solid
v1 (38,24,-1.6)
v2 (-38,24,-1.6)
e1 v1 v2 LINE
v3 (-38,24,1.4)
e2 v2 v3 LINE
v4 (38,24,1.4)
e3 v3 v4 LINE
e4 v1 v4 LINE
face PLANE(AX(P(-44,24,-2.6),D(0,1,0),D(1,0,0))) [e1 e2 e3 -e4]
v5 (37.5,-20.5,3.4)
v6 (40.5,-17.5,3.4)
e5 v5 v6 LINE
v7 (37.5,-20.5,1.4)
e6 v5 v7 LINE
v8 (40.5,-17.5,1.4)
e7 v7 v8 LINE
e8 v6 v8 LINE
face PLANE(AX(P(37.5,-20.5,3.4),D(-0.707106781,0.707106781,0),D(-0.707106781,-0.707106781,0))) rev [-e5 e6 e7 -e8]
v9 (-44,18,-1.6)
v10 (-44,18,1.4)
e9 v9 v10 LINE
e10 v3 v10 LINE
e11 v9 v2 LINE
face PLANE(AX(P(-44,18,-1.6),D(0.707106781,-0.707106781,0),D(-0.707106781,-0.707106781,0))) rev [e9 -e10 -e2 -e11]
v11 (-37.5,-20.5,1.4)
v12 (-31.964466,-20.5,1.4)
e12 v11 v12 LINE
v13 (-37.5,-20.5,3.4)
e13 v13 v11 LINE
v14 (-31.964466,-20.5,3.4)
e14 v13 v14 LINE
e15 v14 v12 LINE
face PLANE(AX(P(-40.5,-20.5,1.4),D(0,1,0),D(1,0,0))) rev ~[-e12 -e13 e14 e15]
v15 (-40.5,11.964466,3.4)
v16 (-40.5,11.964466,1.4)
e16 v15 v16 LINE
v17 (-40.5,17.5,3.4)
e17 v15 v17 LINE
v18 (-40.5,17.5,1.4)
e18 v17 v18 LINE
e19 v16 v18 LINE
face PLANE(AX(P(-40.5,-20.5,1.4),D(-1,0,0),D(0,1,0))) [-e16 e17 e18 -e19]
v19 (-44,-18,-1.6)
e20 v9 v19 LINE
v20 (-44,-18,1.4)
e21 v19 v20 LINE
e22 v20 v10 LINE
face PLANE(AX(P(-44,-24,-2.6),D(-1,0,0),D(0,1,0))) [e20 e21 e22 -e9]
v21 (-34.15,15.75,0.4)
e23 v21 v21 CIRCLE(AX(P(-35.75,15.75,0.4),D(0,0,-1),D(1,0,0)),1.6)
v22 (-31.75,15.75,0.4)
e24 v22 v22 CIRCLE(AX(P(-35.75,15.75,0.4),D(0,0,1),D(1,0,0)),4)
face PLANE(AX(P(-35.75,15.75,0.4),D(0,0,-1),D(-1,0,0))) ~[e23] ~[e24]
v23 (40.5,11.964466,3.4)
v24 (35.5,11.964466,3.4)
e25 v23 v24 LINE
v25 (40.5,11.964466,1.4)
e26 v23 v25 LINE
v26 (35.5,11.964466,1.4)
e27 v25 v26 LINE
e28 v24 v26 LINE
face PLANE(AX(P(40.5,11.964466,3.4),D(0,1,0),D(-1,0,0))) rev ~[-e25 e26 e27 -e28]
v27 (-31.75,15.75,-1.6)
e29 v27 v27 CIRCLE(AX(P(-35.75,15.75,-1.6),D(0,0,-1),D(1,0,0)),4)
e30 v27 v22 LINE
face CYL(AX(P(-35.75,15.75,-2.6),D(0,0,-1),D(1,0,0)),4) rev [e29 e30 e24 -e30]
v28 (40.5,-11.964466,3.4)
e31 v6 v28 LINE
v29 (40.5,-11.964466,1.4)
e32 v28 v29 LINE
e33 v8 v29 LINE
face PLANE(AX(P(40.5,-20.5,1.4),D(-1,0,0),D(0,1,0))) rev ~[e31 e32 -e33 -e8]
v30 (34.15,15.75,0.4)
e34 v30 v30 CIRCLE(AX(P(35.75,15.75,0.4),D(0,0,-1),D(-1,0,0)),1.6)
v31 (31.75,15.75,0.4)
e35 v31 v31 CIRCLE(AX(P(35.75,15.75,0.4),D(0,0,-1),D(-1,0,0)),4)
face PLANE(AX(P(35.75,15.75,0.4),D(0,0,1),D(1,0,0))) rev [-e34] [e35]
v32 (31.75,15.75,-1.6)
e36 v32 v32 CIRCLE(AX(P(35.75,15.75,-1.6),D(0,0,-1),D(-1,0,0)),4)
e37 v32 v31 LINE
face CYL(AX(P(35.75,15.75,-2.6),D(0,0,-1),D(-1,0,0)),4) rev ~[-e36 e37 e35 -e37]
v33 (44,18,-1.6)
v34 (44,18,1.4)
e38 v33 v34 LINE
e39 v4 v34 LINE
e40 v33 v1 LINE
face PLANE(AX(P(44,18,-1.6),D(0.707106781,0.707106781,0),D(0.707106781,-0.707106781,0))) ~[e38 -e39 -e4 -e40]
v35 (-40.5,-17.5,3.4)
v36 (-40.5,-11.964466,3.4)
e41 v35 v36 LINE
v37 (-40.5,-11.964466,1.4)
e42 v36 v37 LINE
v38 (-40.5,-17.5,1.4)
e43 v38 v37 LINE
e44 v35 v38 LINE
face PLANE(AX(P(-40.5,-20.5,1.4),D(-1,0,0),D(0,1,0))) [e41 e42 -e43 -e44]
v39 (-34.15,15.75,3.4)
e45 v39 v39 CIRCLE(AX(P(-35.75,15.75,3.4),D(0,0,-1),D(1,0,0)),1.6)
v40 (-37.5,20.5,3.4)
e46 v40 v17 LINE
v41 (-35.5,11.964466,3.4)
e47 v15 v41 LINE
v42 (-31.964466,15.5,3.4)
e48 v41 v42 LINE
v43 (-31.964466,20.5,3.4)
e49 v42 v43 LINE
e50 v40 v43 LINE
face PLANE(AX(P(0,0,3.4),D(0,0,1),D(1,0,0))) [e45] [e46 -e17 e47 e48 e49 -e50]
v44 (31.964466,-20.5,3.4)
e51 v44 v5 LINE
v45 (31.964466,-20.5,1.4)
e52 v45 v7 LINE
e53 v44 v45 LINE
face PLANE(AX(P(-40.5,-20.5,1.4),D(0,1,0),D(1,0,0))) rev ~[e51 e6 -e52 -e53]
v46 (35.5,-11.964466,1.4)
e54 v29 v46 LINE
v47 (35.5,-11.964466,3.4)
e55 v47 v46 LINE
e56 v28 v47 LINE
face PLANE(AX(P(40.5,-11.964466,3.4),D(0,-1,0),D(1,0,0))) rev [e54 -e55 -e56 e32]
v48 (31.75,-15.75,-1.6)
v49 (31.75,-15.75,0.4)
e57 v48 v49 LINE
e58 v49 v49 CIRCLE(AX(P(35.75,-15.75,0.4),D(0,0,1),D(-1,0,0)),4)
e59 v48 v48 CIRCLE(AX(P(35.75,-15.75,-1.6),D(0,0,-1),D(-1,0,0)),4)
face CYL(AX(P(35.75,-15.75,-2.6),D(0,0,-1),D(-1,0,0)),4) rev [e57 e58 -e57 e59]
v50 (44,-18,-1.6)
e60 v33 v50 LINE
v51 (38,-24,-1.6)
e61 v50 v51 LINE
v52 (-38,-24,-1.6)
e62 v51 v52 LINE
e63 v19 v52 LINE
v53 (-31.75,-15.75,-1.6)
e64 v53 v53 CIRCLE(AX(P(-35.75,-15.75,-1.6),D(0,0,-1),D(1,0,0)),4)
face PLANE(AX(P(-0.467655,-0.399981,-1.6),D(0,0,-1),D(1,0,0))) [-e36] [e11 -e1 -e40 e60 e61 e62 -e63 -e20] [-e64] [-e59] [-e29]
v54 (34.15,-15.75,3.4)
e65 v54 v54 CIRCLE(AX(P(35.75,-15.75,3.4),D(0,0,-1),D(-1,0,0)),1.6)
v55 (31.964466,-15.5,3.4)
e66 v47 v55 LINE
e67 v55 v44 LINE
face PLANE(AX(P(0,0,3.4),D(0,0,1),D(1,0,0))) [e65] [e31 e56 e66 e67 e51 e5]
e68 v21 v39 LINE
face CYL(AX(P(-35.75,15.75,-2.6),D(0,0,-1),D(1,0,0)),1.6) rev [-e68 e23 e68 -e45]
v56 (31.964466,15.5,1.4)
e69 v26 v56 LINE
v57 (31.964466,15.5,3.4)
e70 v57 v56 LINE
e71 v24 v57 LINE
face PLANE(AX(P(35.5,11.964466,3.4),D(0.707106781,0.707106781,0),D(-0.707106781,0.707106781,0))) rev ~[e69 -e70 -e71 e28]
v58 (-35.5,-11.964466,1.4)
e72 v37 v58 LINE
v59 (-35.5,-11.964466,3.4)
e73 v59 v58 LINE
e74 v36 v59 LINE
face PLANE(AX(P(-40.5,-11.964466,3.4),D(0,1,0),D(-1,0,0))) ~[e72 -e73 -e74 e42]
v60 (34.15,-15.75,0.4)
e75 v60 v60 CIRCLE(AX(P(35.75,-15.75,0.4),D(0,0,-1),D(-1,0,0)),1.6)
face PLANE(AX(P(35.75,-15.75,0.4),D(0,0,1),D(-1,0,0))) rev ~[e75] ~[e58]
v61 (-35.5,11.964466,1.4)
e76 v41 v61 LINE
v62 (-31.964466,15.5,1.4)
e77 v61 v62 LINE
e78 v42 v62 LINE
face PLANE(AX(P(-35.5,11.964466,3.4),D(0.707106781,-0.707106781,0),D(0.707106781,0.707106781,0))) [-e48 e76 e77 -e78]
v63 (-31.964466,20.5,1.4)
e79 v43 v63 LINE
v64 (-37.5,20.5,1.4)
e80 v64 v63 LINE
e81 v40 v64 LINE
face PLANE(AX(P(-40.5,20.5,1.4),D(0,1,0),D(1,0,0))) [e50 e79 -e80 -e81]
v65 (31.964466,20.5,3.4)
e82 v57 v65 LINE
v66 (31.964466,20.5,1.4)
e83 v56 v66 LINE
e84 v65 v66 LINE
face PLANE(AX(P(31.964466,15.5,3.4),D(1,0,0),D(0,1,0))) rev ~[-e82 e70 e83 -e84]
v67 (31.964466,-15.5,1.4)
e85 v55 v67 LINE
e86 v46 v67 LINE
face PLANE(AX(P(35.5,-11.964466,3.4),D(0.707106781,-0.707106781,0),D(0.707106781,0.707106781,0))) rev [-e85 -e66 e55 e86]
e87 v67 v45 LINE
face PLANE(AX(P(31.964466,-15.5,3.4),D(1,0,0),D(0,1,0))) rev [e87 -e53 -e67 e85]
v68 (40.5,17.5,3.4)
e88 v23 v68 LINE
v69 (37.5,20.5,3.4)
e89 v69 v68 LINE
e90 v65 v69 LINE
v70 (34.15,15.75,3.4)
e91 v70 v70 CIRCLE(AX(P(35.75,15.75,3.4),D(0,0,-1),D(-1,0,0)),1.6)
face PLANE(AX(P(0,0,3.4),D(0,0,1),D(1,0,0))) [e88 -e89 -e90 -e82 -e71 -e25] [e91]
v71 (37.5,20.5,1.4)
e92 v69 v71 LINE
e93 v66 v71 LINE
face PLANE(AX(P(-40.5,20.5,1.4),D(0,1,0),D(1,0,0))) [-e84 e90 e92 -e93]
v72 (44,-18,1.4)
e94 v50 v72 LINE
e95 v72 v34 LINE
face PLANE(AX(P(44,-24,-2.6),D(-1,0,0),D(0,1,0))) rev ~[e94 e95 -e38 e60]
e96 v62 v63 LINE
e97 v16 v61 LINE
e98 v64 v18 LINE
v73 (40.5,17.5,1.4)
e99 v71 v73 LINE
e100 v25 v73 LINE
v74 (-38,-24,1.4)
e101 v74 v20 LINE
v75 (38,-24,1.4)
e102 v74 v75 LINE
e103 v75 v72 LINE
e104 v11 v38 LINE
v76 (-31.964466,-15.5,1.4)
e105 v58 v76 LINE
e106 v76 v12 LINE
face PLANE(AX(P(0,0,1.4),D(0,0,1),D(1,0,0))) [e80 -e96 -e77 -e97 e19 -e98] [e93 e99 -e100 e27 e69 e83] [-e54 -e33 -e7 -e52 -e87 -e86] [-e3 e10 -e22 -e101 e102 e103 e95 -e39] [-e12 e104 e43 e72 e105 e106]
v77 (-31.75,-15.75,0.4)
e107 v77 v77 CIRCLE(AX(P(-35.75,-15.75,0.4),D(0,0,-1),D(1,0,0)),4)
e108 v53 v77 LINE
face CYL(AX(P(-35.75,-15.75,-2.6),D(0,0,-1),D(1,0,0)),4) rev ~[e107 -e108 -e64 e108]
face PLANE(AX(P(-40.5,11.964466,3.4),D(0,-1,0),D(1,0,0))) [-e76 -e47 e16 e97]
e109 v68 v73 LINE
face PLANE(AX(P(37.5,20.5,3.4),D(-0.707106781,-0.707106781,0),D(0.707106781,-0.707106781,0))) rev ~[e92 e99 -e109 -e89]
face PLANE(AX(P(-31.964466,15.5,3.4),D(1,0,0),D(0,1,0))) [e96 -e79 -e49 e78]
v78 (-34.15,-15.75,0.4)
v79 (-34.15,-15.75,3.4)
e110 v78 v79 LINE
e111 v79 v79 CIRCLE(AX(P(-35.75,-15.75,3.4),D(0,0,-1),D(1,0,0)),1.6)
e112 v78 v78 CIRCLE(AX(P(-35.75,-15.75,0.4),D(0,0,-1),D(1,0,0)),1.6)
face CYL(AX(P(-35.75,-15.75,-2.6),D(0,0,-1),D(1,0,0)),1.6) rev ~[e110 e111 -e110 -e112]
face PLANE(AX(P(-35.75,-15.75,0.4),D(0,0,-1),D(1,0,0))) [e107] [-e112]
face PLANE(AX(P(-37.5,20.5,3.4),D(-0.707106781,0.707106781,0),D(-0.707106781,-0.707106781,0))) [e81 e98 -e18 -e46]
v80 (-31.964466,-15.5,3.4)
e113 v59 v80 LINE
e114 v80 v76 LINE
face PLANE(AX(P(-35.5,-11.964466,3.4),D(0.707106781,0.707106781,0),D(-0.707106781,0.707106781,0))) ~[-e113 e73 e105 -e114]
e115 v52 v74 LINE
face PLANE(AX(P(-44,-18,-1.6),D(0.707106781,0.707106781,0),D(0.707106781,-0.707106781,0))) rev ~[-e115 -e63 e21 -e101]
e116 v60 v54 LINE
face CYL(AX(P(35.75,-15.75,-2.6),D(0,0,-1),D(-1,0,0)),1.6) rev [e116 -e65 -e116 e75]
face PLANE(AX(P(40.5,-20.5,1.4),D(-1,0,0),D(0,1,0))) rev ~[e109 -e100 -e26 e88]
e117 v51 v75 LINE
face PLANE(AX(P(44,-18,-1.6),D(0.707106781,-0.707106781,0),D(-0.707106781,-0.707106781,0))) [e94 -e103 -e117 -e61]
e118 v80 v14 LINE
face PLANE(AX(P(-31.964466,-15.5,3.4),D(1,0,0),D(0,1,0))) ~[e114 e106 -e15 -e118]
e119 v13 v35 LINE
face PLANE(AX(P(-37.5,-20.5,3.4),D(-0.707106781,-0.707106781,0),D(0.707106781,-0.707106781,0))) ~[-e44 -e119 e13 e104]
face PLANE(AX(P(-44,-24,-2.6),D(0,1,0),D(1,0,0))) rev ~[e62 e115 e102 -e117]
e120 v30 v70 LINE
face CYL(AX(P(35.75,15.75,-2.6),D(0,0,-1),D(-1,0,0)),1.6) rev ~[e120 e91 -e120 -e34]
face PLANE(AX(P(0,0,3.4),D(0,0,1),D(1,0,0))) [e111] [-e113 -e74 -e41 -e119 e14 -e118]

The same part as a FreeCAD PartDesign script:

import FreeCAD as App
import Part
import Sketcher
Q = App.Units.Quantity


def add_polygon(sketch, points):
    """Adds a closed chain of lines whose ends are joined by coincident constraints."""
    first, n = sketch.GeometryCount, len(points)
    for a, b in zip(points, points[1:] + points[:1]):
        sketch.addGeometry(Part.LineSegment(App.Vector(*a, 0), App.Vector(*b, 0)), False)
    for i in range(n):
        sketch.addConstraint(Sketcher.Constraint("Coincident", first + i, 2, first + (i + 1) % n, 1))

doc = App.newDocument("Part")
body = doc.addObject("PartDesign::Body", "Body")

# Sketch on XY plane
sketch1 = body.newObject("Sketcher::SketchObject", "Sketch")
sketch1.AttachmentSupport = (doc.getObject("XY_Plane"), [""])
sketch1.MapMode = "FlatFace"
add_polygon(sketch1, [(-44, 24), (-44, -24), (44, -24), (44, 24)])  # lines 0-3
sketch1.addConstraint(Sketcher.Constraint("Vertical", 0))
sketch1.addConstraint(Sketcher.Constraint("Horizontal", 1))
sketch1.addConstraint(Sketcher.Constraint("Vertical", 2))
sketch1.addConstraint(Sketcher.Constraint("Horizontal", 3))
sketch1.addConstraint(Sketcher.Constraint("Symmetric", 0, 2, 2, 2, -1, 1))
sketch1.addConstraint(Sketcher.Constraint("DistanceX", 1, 1, 1, 2, 88.0))
sketch1.addConstraint(Sketcher.Constraint("DistanceY", 0, 2, 0, 1, 48.0))
pad1 = body.newObject("PartDesign::Pad", "Pad")
pad1.Profile = sketch1
pad1.Length = 4

# Sketch on XY plane
sketch2 = body.newObject("Sketcher::SketchObject", "Sketch001")
sketch2.AttachmentSupport = (doc.getObject("XY_Plane"), [""])
sketch2.MapMode = "FlatFace"
sketch2.AttachmentOffset = App.Placement(App.Vector(0, 0, 4), App.Rotation())
add_polygon(sketch2, [(-40, 20), (-40, -20), (40, -20), (40, 20)])  # lines 0-3
sketch2.addConstraint(Sketcher.Constraint("Vertical", 0))
sketch2.addConstraint(Sketcher.Constraint("Horizontal", 1))
sketch2.addConstraint(Sketcher.Constraint("Vertical", 2))
sketch2.addConstraint(Sketcher.Constraint("Horizontal", 3))
sketch2.addConstraint(Sketcher.Constraint("Symmetric", 0, 2, 2, 2, -1, 1))
sketch2.addConstraint(Sketcher.Constraint("DistanceX", 1, 1, 1, 2, 81.0))
sketch2.addConstraint(Sketcher.Constraint("DistanceY", 0, 2, 0, 1, 41.0))
pad2 = body.newObject("PartDesign::Pad", "Pad001")
pad2.Profile = sketch2
pad2.Length = 2

# Sketch on XY plane
sketch3 = body.newObject("Sketcher::SketchObject", "Sketch002")
sketch3.AttachmentSupport = (doc.getObject("XY_Plane"), [""])
sketch3.MapMode = "FlatFace"
sketch3.AttachmentOffset = App.Placement(App.Vector(0, 0, 6), App.Rotation())
add_polygon(sketch3, [(-40, 0), (0, 0), (0, 20), (-32, 20), (-32, 16), (-36, 12), (-40, 12)])  # lines 0-6
sketch3.addConstraint(Sketcher.Constraint("Horizontal", 0))
sketch3.addConstraint(Sketcher.Constraint("Vertical", 1))
sketch3.addConstraint(Sketcher.Constraint("Horizontal", 2))
sketch3.addConstraint(Sketcher.Constraint("Vertical", 3))
sketch3.addConstraint(Sketcher.Constraint("Horizontal", 5))
sketch3.addConstraint(Sketcher.Constraint("Vertical", 6))
sketch3.addConstraint(Sketcher.Constraint("Coincident", 0, 2, -1, 1))
sketch3.addConstraint(Sketcher.Constraint("Equal", 5, 3))
sketch3.addConstraint(Sketcher.Constraint("DistanceX", 5, 2, 5, 1, 5.0))
sketch3.addConstraint(Sketcher.Constraint("Angle", 4, Q("-135 deg")))
sketch3.addConstraint(Sketcher.Constraint("Distance", 4, 5.0))
sketch3.addConstraint(Sketcher.Constraint("DistanceX", 0, 1, 0, 2, 40.5))
sketch3.addConstraint(Sketcher.Constraint("DistanceY", 1, 1, 1, 2, 20.5))
pocket1 = body.newObject("PartDesign::Pocket", "Pocket")
pocket1.Profile = sketch3
pocket1.Length = 2

# Sketch on XY plane
sketch4 = body.newObject("Sketcher::SketchObject", "Sketch003")
sketch4.AttachmentSupport = (doc.getObject("XY_Plane"), [""])
sketch4.MapMode = "FlatFace"
sketch4.AttachmentOffset = App.Placement(App.Vector(0, 0, 6), App.Rotation())
add_polygon(sketch4, [(40, 0), (0, 0), (0, 20), (32, 20), (32, 16), (36, 12), (40, 12)])  # lines 0-6
sketch4.addConstraint(Sketcher.Constraint("Horizontal", 0))
sketch4.addConstraint(Sketcher.Constraint("Vertical", 1))
sketch4.addConstraint(Sketcher.Constraint("Horizontal", 2))
sketch4.addConstraint(Sketcher.Constraint("Vertical", 3))
sketch4.addConstraint(Sketcher.Constraint("Horizontal", 5))
sketch4.addConstraint(Sketcher.Constraint("Vertical", 6))
sketch4.addConstraint(Sketcher.Constraint("Coincident", 0, 2, -1, 1))
sketch4.addConstraint(Sketcher.Constraint("Equal", 5, 3))
sketch4.addConstraint(Sketcher.Constraint("DistanceX", 5, 1, 5, 2, 5.0))
sketch4.addConstraint(Sketcher.Constraint("Angle", 4, Q("-45 deg")))
sketch4.addConstraint(Sketcher.Constraint("Distance", 4, 5.0))
sketch4.addConstraint(Sketcher.Constraint("DistanceX", 0, 2, 0, 1, 40.5))
sketch4.addConstraint(Sketcher.Constraint("DistanceY", 1, 1, 1, 2, 20.5))
pocket2 = body.newObject("PartDesign::Pocket", "Pocket001")
pocket2.Profile = sketch4
pocket2.Length = 2
doc.recompute()

mirrored = body.newObject("PartDesign::Mirrored", "Mirrored")
mirrored.Originals = [pocket1, pocket2]
mirrored.MirrorPlane = (doc.getObject("XZ_Plane"), [""])
body.Tip = mirrored

# Sketch on XY plane
sketch5 = body.newObject("Sketcher::SketchObject", "Sketch004")
sketch5.AttachmentSupport = (doc.getObject("XY_Plane"), [""])
sketch5.MapMode = "FlatFace"
sketch5.AttachmentOffset = App.Placement(App.Vector(0, 0, 6), App.Rotation())
add_polygon(sketch5, [(-40.5, 20.5), (-40.5, 17.5), (-37.5, 20.5)])  # lines 0-2
sketch5.addConstraint(Sketcher.Constraint("Vertical", 0))
sketch5.addConstraint(Sketcher.Constraint("Horizontal", 2))
sketch5.addConstraint(Sketcher.Constraint("Equal", 2, 0))
sketch5.addConstraint(Sketcher.Constraint("DistanceX", 2, 2, 2, 1, 3.0))
sketch5.addConstraint(Sketcher.Constraint("DistanceX", 0, 2, -1, 1, 40.5))
sketch5.addConstraint(Sketcher.Constraint("DistanceY", -1, 1, 0, 2, 17.5))
pocket3 = body.newObject("PartDesign::Pocket", "Pocket002")
pocket3.Profile = sketch5
pocket3.Length = 2

# Sketch on XY plane
sketch6 = body.newObject("Sketcher::SketchObject", "Sketch005")
sketch6.AttachmentSupport = (doc.getObject("XY_Plane"), [""])
sketch6.MapMode = "FlatFace"
sketch6.addGeometry(Part.Circle(App.Vector(-35.8, -15.8, 0), App.Vector(0, 0, 1), 1.6), False)
sketch6.addConstraint(Sketcher.Constraint("Diameter", 0, 3.2))
sketch6.addConstraint(Sketcher.Constraint("DistanceX", 0, 3, -1, 1, 35.75))
sketch6.addConstraint(Sketcher.Constraint("DistanceY", 0, 3, -1, 1, 15.75))
pocket4 = body.newObject("PartDesign::Pocket", "Pocket003")
pocket4.Profile = sketch6
pocket4.Type = "ThroughAll"
pocket4.Reversed = True

# Sketch on XY plane
sketch7 = body.newObject("Sketcher::SketchObject", "Sketch006")
sketch7.AttachmentSupport = (doc.getObject("XY_Plane"), [""])
sketch7.MapMode = "FlatFace"
sketch7.addGeometry(Part.Circle(App.Vector(35.8, -15.8, 0), App.Vector(0, 0, 1), 1.6), False)
sketch7.addConstraint(Sketcher.Constraint("Diameter", 0, 3.2))
sketch7.addConstraint(Sketcher.Constraint("DistanceX", -1, 1, 0, 3, 35.75))
sketch7.addConstraint(Sketcher.Constraint("DistanceY", 0, 3, -1, 1, 15.75))
pocket5 = body.newObject("PartDesign::Pocket", "Pocket004")
pocket5.Profile = sketch7
pocket5.Type = "ThroughAll"
pocket5.Reversed = True
doc.recompute()

mirrored2 = body.newObject("PartDesign::Mirrored", "Mirrored001")
mirrored2.Originals = [pocket4, pocket5]
mirrored2.MirrorPlane = (doc.getObject("XZ_Plane"), [""])
body.Tip = mirrored2

# Sketch on XY plane
sketch8 = body.newObject("Sketcher::SketchObject", "Sketch007")
sketch8.AttachmentSupport = (doc.getObject("XY_Plane"), [""])
sketch8.MapMode = "FlatFace"
sketch8.addGeometry(Part.Circle(App.Vector(-35.8, -15.8, 0), App.Vector(0, 0, 1), 4), False)
sketch8.addConstraint(Sketcher.Constraint("Diameter", 0, 8.0))
sketch8.addConstraint(Sketcher.Constraint("DistanceX", 0, 3, -1, 1, 35.75))
sketch8.addConstraint(Sketcher.Constraint("DistanceY", 0, 3, -1, 1, 15.75))
pocket6 = body.newObject("PartDesign::Pocket", "Pocket005")
pocket6.Profile = sketch8
pocket6.Length = 3
pocket6.Reversed = True

# Sketch on XY plane
sketch9 = body.newObject("Sketcher::SketchObject", "Sketch008")
sketch9.AttachmentSupport = (doc.getObject("XY_Plane"), [""])
sketch9.MapMode = "FlatFace"
sketch9.addGeometry(Part.Circle(App.Vector(35.8, -15.8, 0), App.Vector(0, 0, 1), 4), False)
sketch9.addConstraint(Sketcher.Constraint("Diameter", 0, 8.0))
sketch9.addConstraint(Sketcher.Constraint("DistanceX", -1, 1, 0, 3, 35.75))
sketch9.addConstraint(Sketcher.Constraint("DistanceY", 0, 3, -1, 1, 15.75))
pocket7 = body.newObject("PartDesign::Pocket", "Pocket006")
pocket7.Profile = sketch9
pocket7.Length = 3
pocket7.Reversed = True
doc.recompute()

mirrored3 = body.newObject("PartDesign::Mirrored", "Mirrored002")
mirrored3.Originals = [pocket6, pocket7]
mirrored3.MirrorPlane = (doc.getObject("XZ_Plane"), [""])
body.Tip = mirrored3

# Sketch on XY plane
sketch10 = body.newObject("Sketcher::SketchObject", "Sketch009")
sketch10.AttachmentSupport = (doc.getObject("XY_Plane"), [""])
sketch10.MapMode = "FlatFace"
add_polygon(sketch10, [(-51, -29), (-51, 28), (50, 28), (50, -29)])  # lines 0-3
sketch10.addConstraint(Sketcher.Constraint("Vertical", 0))
sketch10.addConstraint(Sketcher.Constraint("Horizontal", 1))
sketch10.addConstraint(Sketcher.Constraint("Vertical", 2))
sketch10.addConstraint(Sketcher.Constraint("Horizontal", 3))
sketch10.addConstraint(Sketcher.Constraint("DistanceX", 1, 1, 1, 2, 100.342552))
sketch10.addConstraint(Sketcher.Constraint("DistanceY", 0, 1, 0, 2, 57.696968))
sketch10.addConstraint(Sketcher.Constraint("DistanceX", 0, 2, -1, 1, 50.638931))
sketch10.addConstraint(Sketcher.Constraint("DistanceY", -1, 1, 0, 2, 28.448503))
pocket8 = body.newObject("PartDesign::Pocket", "Pocket007")
pocket8.Profile = sketch10
pocket8.Length = 1
pocket8.Reversed = True

# Sketch on XY plane
sketch11 = body.newObject("Sketcher::SketchObject", "Sketch010")
sketch11.AttachmentSupport = (doc.getObject("XY_Plane"), [""])
sketch11.MapMode = "FlatFace"
sketch11.AttachmentOffset = App.Placement(App.Vector(0, 0, 1), App.Rotation())
add_polygon(sketch11, [(-44, -18), (-38, -24), (-44, -24)])  # lines 0-2
sketch11.addConstraint(Sketcher.Constraint("Horizontal", 1))
sketch11.addConstraint(Sketcher.Constraint("Vertical", 2))
sketch11.addConstraint(Sketcher.Constraint("Equal", 1, 2))
sketch11.addConstraint(Sketcher.Constraint("DistanceX", 1, 2, 1, 1, 6.0))
sketch11.addConstraint(Sketcher.Constraint("DistanceX", 0, 2, -1, 1, 38.0))
sketch11.addConstraint(Sketcher.Constraint("DistanceY", 0, 2, -1, 1, 24.0))
pocket9 = body.newObject("PartDesign::Pocket", "Pocket008")
pocket9.Profile = sketch11
pocket9.Type = "ThroughAll"
pocket9.Reversed = True

# Sketch on XY plane
sketch12 = body.newObject("Sketcher::SketchObject", "Sketch011")
sketch12.AttachmentSupport = (doc.getObject("XY_Plane"), [""])
sketch12.MapMode = "FlatFace"
sketch12.AttachmentOffset = App.Placement(App.Vector(0, 0, 1), App.Rotation())
add_polygon(sketch12, [(44, -18), (38, -24), (44, -24)])  # lines 0-2
sketch12.addConstraint(Sketcher.Constraint("Horizontal", 1))
sketch12.addConstraint(Sketcher.Constraint("Vertical", 2))
sketch12.addConstraint(Sketcher.Constraint("Equal", 1, 2))
sketch12.addConstraint(Sketcher.Constraint("DistanceX", 1, 1, 1, 2, 6.0))
sketch12.addConstraint(Sketcher.Constraint("DistanceX", -1, 1, 0, 2, 38.0))
sketch12.addConstraint(Sketcher.Constraint("DistanceY", 0, 2, -1, 1, 24.0))
pocket10 = body.newObject("PartDesign::Pocket", "Pocket009")
pocket10.Profile = sketch12
pocket10.Type = "ThroughAll"
pocket10.Reversed = True
doc.recompute()

mirrored4 = body.newObject("PartDesign::Mirrored", "Mirrored003")
mirrored4.Originals = [pocket9, pocket10]
mirrored4.MirrorPlane = (doc.getObject("XZ_Plane"), [""])
body.Tip = mirrored4

# Sketch on XY plane
sketch13 = body.newObject("Sketcher::SketchObject", "Sketch012")
sketch13.AttachmentSupport = (doc.getObject("XY_Plane"), [""])
sketch13.MapMode = "FlatFace"
sketch13.AttachmentOffset = App.Placement(App.Vector(0, 0, 6), App.Rotation())
add_polygon(sketch13, [(40.5, 20.5), (40.5, 17.5), (37.5, 20.5)])  # lines 0-2
sketch13.addConstraint(Sketcher.Constraint("Vertical", 0))
sketch13.addConstraint(Sketcher.Constraint("Horizontal", 2))
sketch13.addConstraint(Sketcher.Constraint("Equal", 2, 0))
sketch13.addConstraint(Sketcher.Constraint("DistanceX", 2, 1, 2, 2, 3.0))
sketch13.addConstraint(Sketcher.Constraint("DistanceX", -1, 1, 0, 2, 40.5))
sketch13.addConstraint(Sketcher.Constraint("DistanceY", -1, 1, 0, 2, 17.5))
pocket11 = body.newObject("PartDesign::Pocket", "Pocket010")
pocket11.Profile = sketch13
pocket11.Length = 2
doc.recompute()

mirrored5 = body.newObject("PartDesign::Mirrored", "Mirrored004")
mirrored5.Originals = [pocket3, pocket11]
mirrored5.MirrorPlane = (doc.getObject("XZ_Plane"), [""])
body.Tip = mirrored5
body2 = doc.addObject("PartDesign::Body", "Body001")
doc.recompute()

body.Placement = App.Placement(App.Vector(0, 0, -2.6), App.Rotation(App.Vector(0, 0, 1), 0))
boolean = body2.newObject("PartDesign::Boolean", "Boolean")
boolean.Type = "Fuse"
boolean.addObjects([body])

doc.recompute()
